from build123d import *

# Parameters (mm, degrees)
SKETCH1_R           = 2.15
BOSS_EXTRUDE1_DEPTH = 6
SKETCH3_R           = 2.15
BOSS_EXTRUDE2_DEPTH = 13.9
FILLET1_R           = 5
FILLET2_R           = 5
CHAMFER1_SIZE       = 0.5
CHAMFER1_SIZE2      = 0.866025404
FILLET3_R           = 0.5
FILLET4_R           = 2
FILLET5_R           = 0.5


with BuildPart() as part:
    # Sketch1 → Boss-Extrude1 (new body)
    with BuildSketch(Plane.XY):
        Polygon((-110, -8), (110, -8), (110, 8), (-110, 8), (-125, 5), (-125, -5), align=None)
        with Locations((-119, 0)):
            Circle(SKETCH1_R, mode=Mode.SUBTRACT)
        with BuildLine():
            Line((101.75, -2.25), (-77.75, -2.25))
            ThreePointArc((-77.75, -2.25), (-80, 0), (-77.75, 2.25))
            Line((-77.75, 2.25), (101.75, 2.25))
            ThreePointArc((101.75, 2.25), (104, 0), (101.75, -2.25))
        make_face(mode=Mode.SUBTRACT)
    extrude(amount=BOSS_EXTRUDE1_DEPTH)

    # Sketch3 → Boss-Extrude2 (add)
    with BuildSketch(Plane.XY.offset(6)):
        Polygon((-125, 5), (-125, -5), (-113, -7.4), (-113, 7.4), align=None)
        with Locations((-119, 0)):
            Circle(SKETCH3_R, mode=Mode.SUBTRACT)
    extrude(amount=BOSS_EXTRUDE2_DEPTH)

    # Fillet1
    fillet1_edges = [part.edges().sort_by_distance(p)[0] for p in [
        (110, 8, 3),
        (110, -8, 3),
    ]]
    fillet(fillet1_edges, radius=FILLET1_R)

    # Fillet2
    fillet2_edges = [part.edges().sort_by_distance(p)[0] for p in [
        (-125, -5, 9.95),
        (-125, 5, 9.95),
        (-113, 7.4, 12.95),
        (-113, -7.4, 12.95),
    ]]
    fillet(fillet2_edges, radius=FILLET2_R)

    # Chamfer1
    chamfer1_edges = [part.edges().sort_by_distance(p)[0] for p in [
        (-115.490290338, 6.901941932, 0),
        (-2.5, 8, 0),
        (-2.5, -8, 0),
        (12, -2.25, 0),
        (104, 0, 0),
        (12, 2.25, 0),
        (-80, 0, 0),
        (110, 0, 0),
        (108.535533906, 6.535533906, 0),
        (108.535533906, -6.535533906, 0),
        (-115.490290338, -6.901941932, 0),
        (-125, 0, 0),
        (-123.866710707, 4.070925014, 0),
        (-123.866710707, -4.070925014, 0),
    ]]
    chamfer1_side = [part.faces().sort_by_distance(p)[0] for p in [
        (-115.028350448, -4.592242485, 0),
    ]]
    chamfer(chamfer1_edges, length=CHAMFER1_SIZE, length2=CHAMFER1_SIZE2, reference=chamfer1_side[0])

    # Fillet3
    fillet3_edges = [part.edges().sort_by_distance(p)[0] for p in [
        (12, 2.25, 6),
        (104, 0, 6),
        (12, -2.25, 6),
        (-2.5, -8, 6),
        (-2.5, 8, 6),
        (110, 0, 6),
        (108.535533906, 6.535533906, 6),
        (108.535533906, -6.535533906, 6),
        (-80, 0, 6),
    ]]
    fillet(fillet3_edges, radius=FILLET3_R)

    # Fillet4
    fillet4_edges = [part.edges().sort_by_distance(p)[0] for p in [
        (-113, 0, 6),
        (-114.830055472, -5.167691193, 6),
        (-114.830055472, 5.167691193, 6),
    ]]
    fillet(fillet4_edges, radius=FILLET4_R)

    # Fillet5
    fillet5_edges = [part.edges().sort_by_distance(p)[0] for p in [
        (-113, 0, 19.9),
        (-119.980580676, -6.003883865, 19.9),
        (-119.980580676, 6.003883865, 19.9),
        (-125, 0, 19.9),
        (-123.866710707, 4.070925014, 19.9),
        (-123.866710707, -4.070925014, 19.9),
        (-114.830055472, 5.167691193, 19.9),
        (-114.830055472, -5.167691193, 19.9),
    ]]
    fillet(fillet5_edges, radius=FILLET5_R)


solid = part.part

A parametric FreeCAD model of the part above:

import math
import FreeCAD as App
import Part
import Sketcher
from FreeCAD import Vector


def edges_at(feature, points):
    """Names of the edges that pass closest to the given points."""
    edges = feature.Shape.Edges
    near = lambda p: min(range(len(edges)), key=lambda i: edges[i].distToShape(Part.Vertex(*p))[0])
    return sorted({f"Edge{near(p) + 1}" for p in points})


def add_polygon(sketch, points):
    """Adds a closed chain of lines whose ends are joined by coincident constraints."""
    first, n = sketch.GeometryCount, len(points)
    for a, b in zip(points, points[1:] + points[:1]):
        sketch.addGeometry(Part.LineSegment(App.Vector(*a, 0), App.Vector(*b, 0)), False)
    for i in range(n):
        sketch.addConstraint(Sketcher.Constraint("Coincident", first + i, 2, first + (i + 1) % n, 1))

doc = App.newDocument("Part")
params = doc.addObject("Spreadsheet::Sheet", "Params")
for row, (alias, value) in enumerate([
    ("sketch1_diameter", "4.3 mm"),
    ("sketch1_width", "220 mm"),
    ("sketch1_height", "16 mm"),
    ("sketch1_height2", "10 mm"),
    ("sketch1_radius", "2.25 mm"),
    ("pad1_length", "6 mm"),
    ("sketch2_diameter", "4.3 mm"),
    ("sketch2_height", "10 mm"),
    ("sketch2_height2", "14.8 mm"),
    ("pad2_length", "13.9 mm"),
    ("fillet_radius", "5 mm"),
    ("fillet2_radius", "5 mm"),
    ("chamfer_size", "0.5 mm"),
    ("chamfer_size2", "0.866025 mm"),
    ("fillet3_radius", "0.5 mm"),
    ("fillet4_radius", "2 mm"),
    ("fillet5_radius", "0.5 mm"),
], start=1):
    params.set(f"A{row}", alias)
    params.set(f"B{row}", "=" + value)
    params.setAlias(f"B{row}", alias)

body = doc.addObject("PartDesign::Body", "Body")

sketch1 = body.newObject("Sketcher::SketchObject", "Sketch")
sketch1.AttachmentSupport = (doc.getObject("XY_Plane"), [""])
sketch1.MapMode = "FlatFace"
add_polygon(sketch1, [(-110, -8), (110, -8), (110, 8), (-110, 8), (-125, 5), (-125, -5)])
sketch1.addGeometry(Part.Circle(Vector(-119, 0, 0), Vector(0, 0, 1), 2.1), False)
sketch1.addGeometry(Part.ArcOfCircle(Part.Circle(Vector(101.8, 0, 0), Vector(0, 0, 1), 2.2), math.radians(-90), math.radians(90)), False)
sketch1.addGeometry(Part.LineSegment(Vector(101.8, -2.2, 0), Vector(-77.8, -2.2, 0)), False)
sketch1.addGeometry(Part.ArcOfCircle(Part.Circle(Vector(-77.8, 0, 0), Vector(0, 0, 1), 2.2), math.radians(90), math.radians(270)), False)
sketch1.addGeometry(Part.LineSegment(Vector(-77.8, 2.2, 0), Vector(101.8, 2.2, 0)), False)
sketch1.addConstraint([
    Sketcher.Constraint("Tangent", 7, 1, 8, 1),
    Sketcher.Constraint("Tangent", 8, 2, 9, 2),
    Sketcher.Constraint("Tangent", 9, 1, 10, 1),
    Sketcher.Constraint("Tangent", 10, 2, 7, 2),
    Sketcher.Constraint("Horizontal", 0),
    Sketcher.Constraint("Vertical", 1),
    Sketcher.Constraint("Horizontal", 2),
    Sketcher.Constraint("Vertical", 4),
    Sketcher.Constraint("Horizontal", 8),
    Sketcher.Constraint("Horizontal", 10),
    Sketcher.Constraint("Symmetric", 0, 2, 2, 2, -1, 1),
    Sketcher.Constraint("PointOnObject", 6, 3, -1),
    Sketcher.Constraint("PointOnObject", 7, 3, -1),
    Sketcher.Constraint("Vertical", 2, 2, 5, 2),
    Sketcher.Constraint("Equal", 3, 5),
    Sketcher.Constraint("Diameter", 6, 4.3),
    Sketcher.Constraint("DistanceX", 0, 1, 0, 2, 220.0),
    Sketcher.Constraint("DistanceY", 1, 1, 1, 2, 16.0),
    Sketcher.Constraint("DistanceY", 4, 2, 4, 1, 10.0),
    Sketcher.Constraint("Radius", 7, 2.25),
    Sketcher.Constraint("DistanceX", 8, 2, 8, 1, 179.5),
    Sketcher.Constraint("DistanceX", 6, 3, -1, 1, 119.0),
    Sketcher.Constraint("DistanceX", 3, 2, -1, 1, 125.0),
    Sketcher.Constraint("DistanceX", -1, 1, 7, 3, 101.75),
])
sketch1.setExpression("Constraints[21]", "Params.sketch1_diameter")
sketch1.setExpression("Constraints[22]", "Params.sketch1_width")
sketch1.setExpression("Constraints[23]", "Params.sketch1_height")
sketch1.setExpression("Constraints[24]", "Params.sketch1_height2")
sketch1.setExpression("Constraints[25]", "Params.sketch1_radius")
pad1 = body.newObject("PartDesign::Pad", "Pad")
pad1.Profile = sketch1
pad1.setExpression("Length", "Params.pad1_length")

sketch2 = body.newObject("Sketcher::SketchObject", "Sketch001")
sketch2.AttachmentSupport = (doc.getObject("XY_Plane"), [""])
sketch2.MapMode = "FlatFace"
sketch2.AttachmentOffset = App.Placement(Vector(0, 0, 6), App.Rotation())
add_polygon(sketch2, [(-125, 5), (-125, -5), (-113, -7.4), (-113, 7.4)])
sketch2.addGeometry(Part.Circle(Vector(-119, 0, 0), Vector(0, 0, 1), 2.1), False)
sketch2.addConstraint([
    Sketcher.Constraint("Vertical", 0),
    Sketcher.Constraint("Vertical", 2),
    Sketcher.Constraint("PointOnObject", 4, 3, -1),
    Sketcher.Constraint("Equal", 1, 3),
    Sketcher.Constraint("Diameter", 4, 4.3),
    Sketcher.Constraint("DistanceY", 0, 2, 0, 1, 10.0),
    Sketcher.Constraint("DistanceY", 2, 1, 2, 2, 14.8),
    Sketcher.Constraint("DistanceX", 4, 3, -1, 1, 119.0),
    Sketcher.Constraint("DistanceX", 0, 2, -1, 1, 125.0),
    Sketcher.Constraint("DistanceY", 0, 2, -1, 1, 5.0),
    Sketcher.Constraint("DistanceX", 1, 2, -1, 1, 113.0),
])
sketch2.setExpression("Constraints[8]", "Params.sketch2_diameter")
sketch2.setExpression("Constraints[9]", "Params.sketch2_height")
sketch2.setExpression("Constraints[10]", "Params.sketch2_height2")
pad2 = body.newObject("PartDesign::Pad", "Pad001")
pad2.Profile = sketch2
pad2.setExpression("Length", "Params.pad2_length")
doc.recompute()

fillet = body.newObject("PartDesign::Fillet", "Fillet")
fillet.Base = (pad2, edges_at(pad2, [(110, 8, 3), (110, -8, 3)]))
fillet.setExpression("Radius", "Params.fillet_radius")
doc.recompute()

fillet2 = body.newObject("PartDesign::Fillet", "Fillet001")
fillet2.Base = (fillet, edges_at(fillet, [
    (-125, -5, 9.95),
    (-125, 5, 9.95),
    (-113, 7.4, 12.95),
    (-113, -7.4, 12.95),
]))
fillet2.setExpression("Radius", "Params.fillet2_radius")
doc.recompute()

chamfer = body.newObject("PartDesign::Chamfer", "Chamfer")
chamfer.Base = (fillet2, edges_at(fillet2, [
    (-115.49, 6.902, 0),
    (-2.5, 8, 0),
    (-2.5, -8, 0),
    (12, -2.25, 0),
    (104, 0, 0),
    (12, 2.25, 0),
    (-80, 0, 0),
    (110, 0, 0),
    (108.536, 6.536, 0),
    (108.536, -6.536, 0),
    (-115.49, -6.902, 0),
    (-125, 0, 0),
    (-123.867, 4.071, 0),
    (-123.867, -4.071, 0),
]))
chamfer.ChamferType = "Two distances"
chamfer.setExpression("Size", "Params.chamfer_size")
chamfer.setExpression("Size2", "Params.chamfer_size2")
doc.recompute()

fillet3 = body.newObject("PartDesign::Fillet", "Fillet002")
fillet3.Base = (chamfer, edges_at(chamfer, [
    (12, 2.25, 6),
    (104, 0, 6),
    (12, -2.25, 6),
    (-2.5, -8, 6),
    (-2.5, 8, 6),
    (110, 0, 6),
    (108.536, 6.536, 6),
    (108.536, -6.536, 6),
    (-80, 0, 6),
]))
fillet3.setExpression("Radius", "Params.fillet3_radius")
doc.recompute()

fillet4 = body.newObject("PartDesign::Fillet", "Fillet003")
fillet4.Base = (fillet3, edges_at(fillet3, [(-113, 0, 6), (-114.83, -5.168, 6), (-114.83, 5.168, 6)]))
fillet4.setExpression("Radius", "Params.fillet4_radius")
doc.recompute()

fillet5 = body.newObject("PartDesign::Fillet", "Fillet004")
fillet5.Base = (fillet4, edges_at(fillet4, [
    (-113, 0, 19.9),
    (-119.981, -6.004, 19.9),
    (-119.981, 6.004, 19.9),
    (-125, 0, 19.9),
    (-123.867, 4.071, 19.9),
    (-123.867, -4.071, 19.9),
    (-114.83, 5.168, 19.9),
    (-114.83, -5.168, 19.9),
]))
fillet5.setExpression("Radius", "Params.fillet5_radius")

doc.recompute()
